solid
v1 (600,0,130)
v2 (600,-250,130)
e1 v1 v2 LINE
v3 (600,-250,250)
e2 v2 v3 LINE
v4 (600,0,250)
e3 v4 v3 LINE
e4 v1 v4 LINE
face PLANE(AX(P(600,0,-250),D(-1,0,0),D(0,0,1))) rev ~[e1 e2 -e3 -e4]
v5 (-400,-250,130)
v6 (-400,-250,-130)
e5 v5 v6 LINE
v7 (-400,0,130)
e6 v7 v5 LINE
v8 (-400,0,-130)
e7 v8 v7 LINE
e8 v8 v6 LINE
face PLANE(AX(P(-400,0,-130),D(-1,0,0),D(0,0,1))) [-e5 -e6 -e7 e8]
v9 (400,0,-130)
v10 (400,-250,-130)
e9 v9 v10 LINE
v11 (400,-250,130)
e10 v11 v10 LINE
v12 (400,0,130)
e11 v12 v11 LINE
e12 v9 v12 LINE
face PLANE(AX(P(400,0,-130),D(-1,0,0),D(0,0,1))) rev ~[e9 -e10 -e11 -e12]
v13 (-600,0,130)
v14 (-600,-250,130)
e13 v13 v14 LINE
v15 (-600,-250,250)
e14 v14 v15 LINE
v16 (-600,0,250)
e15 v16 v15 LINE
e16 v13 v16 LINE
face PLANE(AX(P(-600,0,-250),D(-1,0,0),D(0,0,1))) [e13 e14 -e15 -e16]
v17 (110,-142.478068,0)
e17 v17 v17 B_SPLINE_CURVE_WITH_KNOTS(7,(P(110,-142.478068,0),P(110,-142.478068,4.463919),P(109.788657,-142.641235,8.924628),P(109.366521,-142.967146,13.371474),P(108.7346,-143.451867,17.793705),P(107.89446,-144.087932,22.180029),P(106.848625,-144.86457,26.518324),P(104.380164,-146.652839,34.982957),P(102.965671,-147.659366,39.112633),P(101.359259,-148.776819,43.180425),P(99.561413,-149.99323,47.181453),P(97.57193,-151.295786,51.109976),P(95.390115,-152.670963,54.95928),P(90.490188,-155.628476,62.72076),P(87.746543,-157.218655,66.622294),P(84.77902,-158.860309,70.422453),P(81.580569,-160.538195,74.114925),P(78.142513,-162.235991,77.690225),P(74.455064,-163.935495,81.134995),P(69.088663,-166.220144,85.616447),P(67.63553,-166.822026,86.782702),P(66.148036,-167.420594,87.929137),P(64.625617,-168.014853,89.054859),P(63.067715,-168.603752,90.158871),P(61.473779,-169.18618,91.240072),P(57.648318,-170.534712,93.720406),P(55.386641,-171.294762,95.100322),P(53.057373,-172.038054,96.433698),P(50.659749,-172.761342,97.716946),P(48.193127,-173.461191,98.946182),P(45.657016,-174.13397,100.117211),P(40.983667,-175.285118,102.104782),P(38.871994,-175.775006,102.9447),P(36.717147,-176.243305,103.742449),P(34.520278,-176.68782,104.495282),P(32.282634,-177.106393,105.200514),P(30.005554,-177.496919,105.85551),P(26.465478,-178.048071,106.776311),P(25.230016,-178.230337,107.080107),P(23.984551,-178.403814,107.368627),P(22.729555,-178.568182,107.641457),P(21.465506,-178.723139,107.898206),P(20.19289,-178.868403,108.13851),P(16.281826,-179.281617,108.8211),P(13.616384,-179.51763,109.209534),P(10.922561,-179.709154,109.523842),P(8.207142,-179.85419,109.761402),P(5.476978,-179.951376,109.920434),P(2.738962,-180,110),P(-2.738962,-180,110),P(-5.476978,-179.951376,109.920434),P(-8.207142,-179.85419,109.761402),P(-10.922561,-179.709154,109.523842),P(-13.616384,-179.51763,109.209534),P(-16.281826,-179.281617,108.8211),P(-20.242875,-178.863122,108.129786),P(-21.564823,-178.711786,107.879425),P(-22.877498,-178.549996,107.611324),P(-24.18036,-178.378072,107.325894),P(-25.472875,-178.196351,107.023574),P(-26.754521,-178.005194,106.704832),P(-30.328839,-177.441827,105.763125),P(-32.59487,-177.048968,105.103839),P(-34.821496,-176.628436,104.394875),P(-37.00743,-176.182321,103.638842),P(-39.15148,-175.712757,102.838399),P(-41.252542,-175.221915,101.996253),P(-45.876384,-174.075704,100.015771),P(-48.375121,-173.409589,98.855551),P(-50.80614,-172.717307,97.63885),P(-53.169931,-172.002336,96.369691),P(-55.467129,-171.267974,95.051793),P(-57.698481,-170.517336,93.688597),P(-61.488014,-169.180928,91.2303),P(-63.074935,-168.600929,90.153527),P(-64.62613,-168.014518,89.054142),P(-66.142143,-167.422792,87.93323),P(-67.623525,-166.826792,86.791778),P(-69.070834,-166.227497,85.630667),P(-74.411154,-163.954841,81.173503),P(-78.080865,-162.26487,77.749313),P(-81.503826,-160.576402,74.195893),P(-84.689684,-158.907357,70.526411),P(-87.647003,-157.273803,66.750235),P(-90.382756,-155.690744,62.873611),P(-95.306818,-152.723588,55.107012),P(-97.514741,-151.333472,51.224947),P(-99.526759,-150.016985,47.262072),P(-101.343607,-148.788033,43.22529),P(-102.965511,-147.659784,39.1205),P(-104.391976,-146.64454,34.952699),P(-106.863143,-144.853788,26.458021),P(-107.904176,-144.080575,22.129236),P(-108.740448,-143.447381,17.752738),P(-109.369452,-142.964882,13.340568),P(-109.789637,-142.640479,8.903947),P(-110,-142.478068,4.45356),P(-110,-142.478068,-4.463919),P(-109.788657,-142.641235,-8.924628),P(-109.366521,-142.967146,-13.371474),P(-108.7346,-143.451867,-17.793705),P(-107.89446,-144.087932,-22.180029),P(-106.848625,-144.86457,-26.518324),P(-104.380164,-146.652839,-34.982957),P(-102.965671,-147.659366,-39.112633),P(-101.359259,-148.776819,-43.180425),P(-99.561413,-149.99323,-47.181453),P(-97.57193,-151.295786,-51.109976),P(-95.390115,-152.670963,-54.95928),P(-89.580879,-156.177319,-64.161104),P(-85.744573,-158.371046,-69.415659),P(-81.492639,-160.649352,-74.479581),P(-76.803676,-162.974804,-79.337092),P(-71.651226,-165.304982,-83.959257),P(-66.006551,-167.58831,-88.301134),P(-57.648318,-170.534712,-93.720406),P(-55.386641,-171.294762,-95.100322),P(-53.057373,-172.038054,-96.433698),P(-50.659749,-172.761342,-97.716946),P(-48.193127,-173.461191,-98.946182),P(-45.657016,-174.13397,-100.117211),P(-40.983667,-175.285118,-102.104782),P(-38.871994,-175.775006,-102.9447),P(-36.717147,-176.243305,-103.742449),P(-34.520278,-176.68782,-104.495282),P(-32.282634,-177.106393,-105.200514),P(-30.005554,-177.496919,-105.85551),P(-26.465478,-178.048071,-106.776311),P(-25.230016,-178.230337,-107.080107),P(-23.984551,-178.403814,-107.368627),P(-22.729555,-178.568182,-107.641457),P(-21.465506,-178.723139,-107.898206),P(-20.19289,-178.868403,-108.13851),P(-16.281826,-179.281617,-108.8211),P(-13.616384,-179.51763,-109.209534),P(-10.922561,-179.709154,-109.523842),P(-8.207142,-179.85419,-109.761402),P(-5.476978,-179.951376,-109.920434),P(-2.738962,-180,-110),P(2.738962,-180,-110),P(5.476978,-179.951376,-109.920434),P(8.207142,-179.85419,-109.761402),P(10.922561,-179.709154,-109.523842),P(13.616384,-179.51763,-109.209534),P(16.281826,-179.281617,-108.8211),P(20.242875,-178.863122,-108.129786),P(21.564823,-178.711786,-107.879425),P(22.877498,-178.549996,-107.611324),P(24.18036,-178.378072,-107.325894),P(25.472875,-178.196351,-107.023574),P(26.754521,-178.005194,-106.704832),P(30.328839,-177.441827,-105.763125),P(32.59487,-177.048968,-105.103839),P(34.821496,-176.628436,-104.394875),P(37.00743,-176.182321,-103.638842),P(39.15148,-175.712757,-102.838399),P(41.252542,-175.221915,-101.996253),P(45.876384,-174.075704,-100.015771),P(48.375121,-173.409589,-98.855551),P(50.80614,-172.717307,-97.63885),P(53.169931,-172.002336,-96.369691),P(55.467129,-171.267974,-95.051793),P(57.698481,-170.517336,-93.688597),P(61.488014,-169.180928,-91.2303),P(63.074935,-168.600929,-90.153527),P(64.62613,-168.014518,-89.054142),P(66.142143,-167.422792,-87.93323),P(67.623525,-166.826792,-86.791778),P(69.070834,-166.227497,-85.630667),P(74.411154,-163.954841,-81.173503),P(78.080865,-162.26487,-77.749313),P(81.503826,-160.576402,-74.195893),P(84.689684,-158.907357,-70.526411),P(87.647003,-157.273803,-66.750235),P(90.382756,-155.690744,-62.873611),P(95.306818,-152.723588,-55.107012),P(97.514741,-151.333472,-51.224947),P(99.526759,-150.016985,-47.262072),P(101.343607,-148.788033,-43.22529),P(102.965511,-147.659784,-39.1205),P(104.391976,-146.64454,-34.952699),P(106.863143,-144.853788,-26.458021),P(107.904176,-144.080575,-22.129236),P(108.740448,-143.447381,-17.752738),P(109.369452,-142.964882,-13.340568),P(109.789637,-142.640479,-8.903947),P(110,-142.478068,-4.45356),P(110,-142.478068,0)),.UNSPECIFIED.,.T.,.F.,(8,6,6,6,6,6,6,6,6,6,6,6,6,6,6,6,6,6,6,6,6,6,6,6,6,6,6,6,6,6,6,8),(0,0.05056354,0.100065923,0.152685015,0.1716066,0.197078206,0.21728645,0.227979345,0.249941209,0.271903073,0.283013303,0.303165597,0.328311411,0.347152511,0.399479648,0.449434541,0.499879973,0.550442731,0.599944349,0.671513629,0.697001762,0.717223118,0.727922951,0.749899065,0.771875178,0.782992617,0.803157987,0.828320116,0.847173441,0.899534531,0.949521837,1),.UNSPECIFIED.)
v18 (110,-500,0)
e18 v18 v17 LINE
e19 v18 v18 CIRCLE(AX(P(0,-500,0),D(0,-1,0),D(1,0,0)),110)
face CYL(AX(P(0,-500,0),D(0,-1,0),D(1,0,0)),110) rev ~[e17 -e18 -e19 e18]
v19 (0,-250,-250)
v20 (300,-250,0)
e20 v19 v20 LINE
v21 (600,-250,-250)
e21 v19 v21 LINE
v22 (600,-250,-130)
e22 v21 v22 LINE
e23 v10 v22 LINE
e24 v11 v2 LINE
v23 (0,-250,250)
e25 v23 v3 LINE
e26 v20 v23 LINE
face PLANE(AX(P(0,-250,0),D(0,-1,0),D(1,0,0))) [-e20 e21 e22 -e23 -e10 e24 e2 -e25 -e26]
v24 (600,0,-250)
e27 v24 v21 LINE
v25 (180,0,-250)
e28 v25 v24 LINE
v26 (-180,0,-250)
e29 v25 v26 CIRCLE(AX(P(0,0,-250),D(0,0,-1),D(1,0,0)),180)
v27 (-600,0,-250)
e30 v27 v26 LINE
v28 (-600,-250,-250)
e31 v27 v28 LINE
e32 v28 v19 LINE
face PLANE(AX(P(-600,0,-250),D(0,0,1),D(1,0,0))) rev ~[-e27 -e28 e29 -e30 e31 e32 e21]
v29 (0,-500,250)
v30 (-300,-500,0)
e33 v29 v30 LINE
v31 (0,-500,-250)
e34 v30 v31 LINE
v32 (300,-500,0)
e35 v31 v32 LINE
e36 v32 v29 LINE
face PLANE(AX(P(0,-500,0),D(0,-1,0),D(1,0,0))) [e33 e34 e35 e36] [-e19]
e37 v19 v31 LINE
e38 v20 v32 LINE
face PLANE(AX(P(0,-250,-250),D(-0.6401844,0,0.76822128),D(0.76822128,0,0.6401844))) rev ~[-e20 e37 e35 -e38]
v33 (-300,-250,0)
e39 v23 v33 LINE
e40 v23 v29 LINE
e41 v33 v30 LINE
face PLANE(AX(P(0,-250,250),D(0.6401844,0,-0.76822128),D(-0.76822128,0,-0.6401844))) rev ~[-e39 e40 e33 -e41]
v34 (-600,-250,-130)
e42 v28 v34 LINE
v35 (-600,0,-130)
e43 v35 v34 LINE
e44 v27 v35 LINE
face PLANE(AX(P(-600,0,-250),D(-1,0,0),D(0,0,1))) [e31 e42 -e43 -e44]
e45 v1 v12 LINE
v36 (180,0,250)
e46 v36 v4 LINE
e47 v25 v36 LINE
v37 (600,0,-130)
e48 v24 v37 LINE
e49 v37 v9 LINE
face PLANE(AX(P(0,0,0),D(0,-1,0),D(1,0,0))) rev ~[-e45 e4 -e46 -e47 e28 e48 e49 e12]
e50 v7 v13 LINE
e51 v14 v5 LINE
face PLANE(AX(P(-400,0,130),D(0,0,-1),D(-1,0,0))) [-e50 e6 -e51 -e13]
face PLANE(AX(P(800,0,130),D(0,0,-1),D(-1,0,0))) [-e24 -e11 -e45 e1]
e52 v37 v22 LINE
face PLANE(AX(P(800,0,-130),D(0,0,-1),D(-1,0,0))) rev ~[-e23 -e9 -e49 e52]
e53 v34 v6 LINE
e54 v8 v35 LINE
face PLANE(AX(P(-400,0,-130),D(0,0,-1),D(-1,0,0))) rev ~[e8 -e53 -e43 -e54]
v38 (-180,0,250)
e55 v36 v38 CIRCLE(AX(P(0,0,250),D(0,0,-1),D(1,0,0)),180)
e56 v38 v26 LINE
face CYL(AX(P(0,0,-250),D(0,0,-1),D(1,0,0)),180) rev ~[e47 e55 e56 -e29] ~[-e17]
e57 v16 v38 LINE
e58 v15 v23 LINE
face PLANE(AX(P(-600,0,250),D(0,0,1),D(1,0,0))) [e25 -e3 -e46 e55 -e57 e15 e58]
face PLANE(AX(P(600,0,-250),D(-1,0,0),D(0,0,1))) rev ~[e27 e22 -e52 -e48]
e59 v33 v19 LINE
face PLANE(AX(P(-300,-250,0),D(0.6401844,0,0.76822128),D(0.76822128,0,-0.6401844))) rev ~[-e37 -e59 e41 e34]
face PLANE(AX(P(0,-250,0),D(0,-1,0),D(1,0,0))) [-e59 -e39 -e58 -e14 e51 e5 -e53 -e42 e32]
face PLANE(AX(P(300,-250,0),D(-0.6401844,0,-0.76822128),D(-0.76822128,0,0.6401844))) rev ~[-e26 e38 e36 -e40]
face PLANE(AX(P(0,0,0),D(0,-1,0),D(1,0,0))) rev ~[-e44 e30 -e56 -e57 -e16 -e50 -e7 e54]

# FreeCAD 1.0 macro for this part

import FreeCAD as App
import Part
import Sketcher
Q = App.Units.Quantity


def add_polygon(sketch, points):
    """Adds a closed chain of lines whose ends are joined by coincident constraints."""
    first, n = sketch.GeometryCount, len(points)
    for a, b in zip(points, points[1:] + points[:1]):
        sketch.addGeometry(Part.LineSegment(App.Vector(*a, 0), App.Vector(*b, 0)), False)
    for i in range(n):
        sketch.addConstraint(Sketcher.Constraint("Coincident", first + i, 2, first + (i + 1) % n, 1))

doc = App.newDocument("Part")
body = doc.addObject("PartDesign::Body", "Body")

sketch1 = body.newObject("Sketcher::SketchObject", "Sketch")
sketch1.AttachmentSupport = (doc.getObject("XZ_Plane"), [""])
sketch1.MapMode = "FlatFace"
add_polygon(sketch1, [(-600, 250), (-600, -250), (600, -250), (600, 250)])
sketch1.addConstraint([
    Sketcher.Constraint("Vertical", 0),
    Sketcher.Constraint("Horizontal", 1),
    Sketcher.Constraint("Vertical", 2),
    Sketcher.Constraint("Horizontal", 3),
    Sketcher.Constraint("Symmetric", 0, 2, 2, 2, -1, 1),
    Sketcher.Constraint("DistanceX", 1, 1, 1, 2, Q("1200 mm")),
    Sketcher.Constraint("DistanceY", 0, 2, 0, 1, Q("500 mm")),
])
pad1 = body.newObject("PartDesign::Pad", "Pad")
pad1.Profile = sketch1
pad1.Length = 250

sketch2 = body.newObject("Sketcher::SketchObject", "Sketch001")
sketch2.AttachmentSupport = (doc.getObject("XZ_Plane"), [""])
sketch2.MapMode = "FlatFace"
add_polygon(sketch2, [(800, 130), (800, -130), (400, -130), (400, 130)])
add_polygon(sketch2, [(-400, 130), (-400, -130), (-800, -130), (-800, 130)])
sketch2.addConstraint([
    Sketcher.Constraint("Vertical", 0),
    Sketcher.Constraint("Horizontal", 1),
    Sketcher.Constraint("Vertical", 2),
    Sketcher.Constraint("Horizontal", 3),
    Sketcher.Constraint("Vertical", 4),
    Sketcher.Constraint("Horizontal", 5),
    Sketcher.Constraint("Vertical", 6),
    Sketcher.Constraint("Horizontal", 7),
    Sketcher.Constraint("Symmetric", 2, 2, 4, 2, -1, 1),
    Sketcher.Constraint("Symmetric", 0, 2, 6, 2, -1, 1),
    Sketcher.Constraint("Horizontal", 1, 2, 4, 2),
    Sketcher.Constraint("DistanceX", 1, 2, 1, 1, Q("400 mm")),
    Sketcher.Constraint("DistanceY", 0, 2, 0, 1, Q("260 mm")),
    Sketcher.Constraint("DistanceX", -1, 1, 0, 2, Q("800 mm")),
])
pocket1 = body.newObject("PartDesign::Pocket", "Pocket")
pocket1.Profile = sketch2
pocket1.Type = "ThroughAll"
pocket1.Reversed = True

sketch3 = body.newObject("Sketcher::SketchObject", "Sketch002")
sketch3.AttachmentSupport = (doc.getObject("XZ_Plane"), [""])
sketch3.MapMode = "FlatFace"
sketch3.AttachmentOffset = App.Placement(App.Vector(0, 0, 250), App.Rotation())
add_polygon(sketch3, [(0, 250), (-300, 0), (0, -250), (300, 0)])
sketch3.addConstraint([
    Sketcher.Constraint("Symmetric", 0, 2, 2, 2, -1, 1),
    Sketcher.Constraint("Symmetric", 1, 2, 3, 2, -1, 1),
    Sketcher.Constraint("PointOnObject", 0, 2, -1),
    Sketcher.Constraint("PointOnObject", 1, 2, -2),
    Sketcher.Constraint("DistanceX", 0, 2, -1, 1, Q("300 mm")),
    Sketcher.Constraint("DistanceY", 1, 2, -1, 1, Q("250 mm")),
])
pad2 = body.newObject("PartDesign::Pad", "Pad001")
pad2.Profile = sketch3
pad2.Length = 250

sketch4 = body.newObject("Sketcher::SketchObject", "Sketch003")
sketch4.AttachmentSupport = (doc.getObject("XZ_Plane"), [""])
sketch4.MapMode = "FlatFace"
sketch4.AttachmentOffset = App.Placement(App.Vector(0, 0, 500), App.Rotation())
sketch4.addGeometry(Part.Circle(App.Vector(0, 0, 0), App.Vector(0, 0, 1), 110), False)
sketch4.addConstraint([
    Sketcher.Constraint("Coincident", 0, 3, -1, 1),
    Sketcher.Constraint("Diameter", 0, Q("220 mm")),
])
pocket2 = body.newObject("PartDesign::Pocket", "Pocket001")
pocket2.Profile = sketch4
pocket2.Type = "ThroughAll"

sketch5 = body.newObject("Sketcher::SketchObject", "Sketch004")
sketch5.AttachmentSupport = (doc.getObject("XY_Plane"), [""])
sketch5.MapMode = "FlatFace"
sketch5.AttachmentOffset = App.Placement(App.Vector(0, 0, -250), App.Rotation())
sketch5.addGeometry(Part.Circle(App.Vector(0, 0, 0), App.Vector(0, 0, 1), 180), False)
sketch5.addConstraint([
    Sketcher.Constraint("Coincident", 0, 3, -1, 1),
    Sketcher.Constraint("Diameter", 0, Q("360 mm")),
])
pocket3 = body.newObject("PartDesign::Pocket", "Pocket002")
pocket3.Profile = sketch5
pocket3.Type = "ThroughAll"
pocket3.Reversed = True

doc.recompute()
